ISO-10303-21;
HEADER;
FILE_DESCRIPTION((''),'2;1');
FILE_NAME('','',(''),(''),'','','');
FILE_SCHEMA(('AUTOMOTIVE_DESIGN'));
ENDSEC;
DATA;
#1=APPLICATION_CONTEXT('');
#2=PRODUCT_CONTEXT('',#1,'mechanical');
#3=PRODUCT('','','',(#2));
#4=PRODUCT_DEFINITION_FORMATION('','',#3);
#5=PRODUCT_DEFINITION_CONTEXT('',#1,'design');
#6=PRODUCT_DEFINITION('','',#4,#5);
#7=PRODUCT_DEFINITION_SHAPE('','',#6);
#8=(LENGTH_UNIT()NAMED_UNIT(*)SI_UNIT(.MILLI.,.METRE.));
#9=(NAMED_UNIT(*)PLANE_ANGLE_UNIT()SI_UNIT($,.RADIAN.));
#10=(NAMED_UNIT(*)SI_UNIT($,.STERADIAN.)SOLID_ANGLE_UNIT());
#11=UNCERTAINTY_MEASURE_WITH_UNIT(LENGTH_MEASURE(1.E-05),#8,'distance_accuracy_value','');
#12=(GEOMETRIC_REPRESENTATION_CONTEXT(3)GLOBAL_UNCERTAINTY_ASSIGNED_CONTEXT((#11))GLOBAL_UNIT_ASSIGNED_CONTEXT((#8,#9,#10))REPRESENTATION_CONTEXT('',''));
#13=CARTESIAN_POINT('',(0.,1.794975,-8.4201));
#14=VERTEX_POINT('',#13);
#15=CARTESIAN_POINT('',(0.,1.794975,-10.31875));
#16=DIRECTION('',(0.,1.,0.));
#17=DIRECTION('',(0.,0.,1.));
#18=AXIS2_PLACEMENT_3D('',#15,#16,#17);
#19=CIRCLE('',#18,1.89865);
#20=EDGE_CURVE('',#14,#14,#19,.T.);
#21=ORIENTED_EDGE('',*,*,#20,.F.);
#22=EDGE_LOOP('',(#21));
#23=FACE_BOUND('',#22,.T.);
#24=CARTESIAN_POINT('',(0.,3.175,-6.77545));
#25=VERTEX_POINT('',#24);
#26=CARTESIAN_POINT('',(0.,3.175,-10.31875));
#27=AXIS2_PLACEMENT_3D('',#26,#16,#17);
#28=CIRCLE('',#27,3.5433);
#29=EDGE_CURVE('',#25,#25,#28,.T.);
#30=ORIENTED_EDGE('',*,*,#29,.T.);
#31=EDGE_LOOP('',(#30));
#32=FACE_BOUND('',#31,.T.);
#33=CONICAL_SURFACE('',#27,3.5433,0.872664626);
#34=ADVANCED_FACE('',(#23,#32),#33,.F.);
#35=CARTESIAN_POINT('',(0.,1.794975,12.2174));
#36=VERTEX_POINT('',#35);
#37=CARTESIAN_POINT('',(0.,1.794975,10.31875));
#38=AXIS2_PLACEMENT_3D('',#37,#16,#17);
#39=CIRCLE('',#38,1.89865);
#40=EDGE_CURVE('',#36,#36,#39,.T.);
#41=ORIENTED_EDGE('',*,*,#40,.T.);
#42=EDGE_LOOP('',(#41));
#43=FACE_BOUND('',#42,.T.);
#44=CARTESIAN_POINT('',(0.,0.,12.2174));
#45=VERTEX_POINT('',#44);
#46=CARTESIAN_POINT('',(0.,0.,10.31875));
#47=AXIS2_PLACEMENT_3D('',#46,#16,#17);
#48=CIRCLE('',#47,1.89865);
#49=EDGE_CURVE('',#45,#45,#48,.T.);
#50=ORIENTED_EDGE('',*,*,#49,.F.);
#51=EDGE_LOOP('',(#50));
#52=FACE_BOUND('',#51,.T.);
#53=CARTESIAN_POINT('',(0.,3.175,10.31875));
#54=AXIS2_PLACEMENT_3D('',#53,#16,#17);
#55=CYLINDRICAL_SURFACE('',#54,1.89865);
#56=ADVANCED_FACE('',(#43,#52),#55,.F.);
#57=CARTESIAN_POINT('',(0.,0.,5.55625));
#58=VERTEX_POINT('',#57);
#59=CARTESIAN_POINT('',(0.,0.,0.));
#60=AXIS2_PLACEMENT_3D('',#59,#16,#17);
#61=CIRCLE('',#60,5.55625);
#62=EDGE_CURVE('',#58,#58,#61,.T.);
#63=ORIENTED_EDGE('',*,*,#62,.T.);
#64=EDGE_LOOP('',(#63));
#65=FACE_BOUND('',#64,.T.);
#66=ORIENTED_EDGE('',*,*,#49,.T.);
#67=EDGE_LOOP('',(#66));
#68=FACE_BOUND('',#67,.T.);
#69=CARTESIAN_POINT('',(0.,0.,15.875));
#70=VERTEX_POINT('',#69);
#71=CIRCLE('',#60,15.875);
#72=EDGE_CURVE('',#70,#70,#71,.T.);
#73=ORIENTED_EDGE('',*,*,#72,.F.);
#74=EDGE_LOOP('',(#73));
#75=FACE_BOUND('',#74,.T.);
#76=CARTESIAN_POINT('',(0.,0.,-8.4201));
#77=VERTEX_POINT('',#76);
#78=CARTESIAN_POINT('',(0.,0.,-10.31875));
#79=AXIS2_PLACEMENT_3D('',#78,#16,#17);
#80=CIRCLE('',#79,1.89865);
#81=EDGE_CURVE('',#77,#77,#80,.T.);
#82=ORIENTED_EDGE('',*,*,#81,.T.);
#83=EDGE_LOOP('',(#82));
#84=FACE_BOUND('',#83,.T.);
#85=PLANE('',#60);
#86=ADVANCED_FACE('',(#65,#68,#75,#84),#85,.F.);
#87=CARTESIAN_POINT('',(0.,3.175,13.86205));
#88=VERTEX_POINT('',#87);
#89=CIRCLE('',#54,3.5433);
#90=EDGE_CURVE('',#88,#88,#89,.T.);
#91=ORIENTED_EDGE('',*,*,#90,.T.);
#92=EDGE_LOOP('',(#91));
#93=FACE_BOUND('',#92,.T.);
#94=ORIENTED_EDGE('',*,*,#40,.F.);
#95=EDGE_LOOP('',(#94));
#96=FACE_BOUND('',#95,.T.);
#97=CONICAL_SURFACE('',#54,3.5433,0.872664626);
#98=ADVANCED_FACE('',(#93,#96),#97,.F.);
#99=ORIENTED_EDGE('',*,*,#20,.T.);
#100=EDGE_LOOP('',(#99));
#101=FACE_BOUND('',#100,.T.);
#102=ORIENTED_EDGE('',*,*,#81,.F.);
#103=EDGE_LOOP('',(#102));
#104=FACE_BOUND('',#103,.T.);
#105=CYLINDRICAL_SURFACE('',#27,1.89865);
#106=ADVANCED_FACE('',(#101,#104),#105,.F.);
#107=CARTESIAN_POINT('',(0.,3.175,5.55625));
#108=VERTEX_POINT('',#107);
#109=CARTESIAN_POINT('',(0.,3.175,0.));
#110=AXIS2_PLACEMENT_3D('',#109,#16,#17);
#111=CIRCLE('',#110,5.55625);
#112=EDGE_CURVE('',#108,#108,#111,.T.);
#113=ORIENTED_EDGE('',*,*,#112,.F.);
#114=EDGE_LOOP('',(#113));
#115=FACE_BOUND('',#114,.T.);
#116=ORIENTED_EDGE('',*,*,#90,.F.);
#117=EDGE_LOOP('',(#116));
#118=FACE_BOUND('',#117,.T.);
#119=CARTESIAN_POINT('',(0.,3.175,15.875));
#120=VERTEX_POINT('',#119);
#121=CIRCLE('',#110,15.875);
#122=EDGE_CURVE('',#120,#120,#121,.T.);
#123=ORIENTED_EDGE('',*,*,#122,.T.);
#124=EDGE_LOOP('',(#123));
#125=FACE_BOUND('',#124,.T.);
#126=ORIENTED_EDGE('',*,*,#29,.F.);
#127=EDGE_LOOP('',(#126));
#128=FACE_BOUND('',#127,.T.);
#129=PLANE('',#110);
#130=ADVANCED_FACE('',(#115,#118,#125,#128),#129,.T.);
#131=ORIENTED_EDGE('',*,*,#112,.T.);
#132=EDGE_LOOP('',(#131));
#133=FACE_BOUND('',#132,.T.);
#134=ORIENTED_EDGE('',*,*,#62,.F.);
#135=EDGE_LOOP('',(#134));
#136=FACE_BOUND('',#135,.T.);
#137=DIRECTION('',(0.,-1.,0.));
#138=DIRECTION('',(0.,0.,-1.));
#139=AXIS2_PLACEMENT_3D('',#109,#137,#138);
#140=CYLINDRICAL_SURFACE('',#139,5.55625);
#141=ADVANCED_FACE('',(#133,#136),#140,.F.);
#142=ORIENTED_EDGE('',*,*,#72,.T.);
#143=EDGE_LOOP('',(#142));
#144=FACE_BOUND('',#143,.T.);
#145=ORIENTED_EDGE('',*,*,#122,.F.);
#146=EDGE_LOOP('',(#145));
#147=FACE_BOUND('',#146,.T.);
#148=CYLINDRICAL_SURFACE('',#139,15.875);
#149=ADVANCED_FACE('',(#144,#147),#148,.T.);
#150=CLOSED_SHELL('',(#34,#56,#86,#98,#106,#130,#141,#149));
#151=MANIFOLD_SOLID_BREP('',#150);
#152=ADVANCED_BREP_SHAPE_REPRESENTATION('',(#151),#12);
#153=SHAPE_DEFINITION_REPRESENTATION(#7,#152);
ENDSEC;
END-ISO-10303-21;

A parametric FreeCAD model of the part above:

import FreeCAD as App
import Part
import Sketcher
from FreeCAD import Vector
Q = App.Units.Quantity

doc = App.newDocument("Part")
body = doc.addObject("PartDesign::Body", "Body")

sketch1 = body.newObject("Sketcher::SketchObject", "Sketch")
sketch1.AttachmentSupport = (doc.getObject("XZ_Plane"), [""])
sketch1.MapMode = "FlatFace"
sketch1.addGeometry([
    Part.Circle(Vector(0, 0, 0), Vector(0, 0, 1), 16),
    Part.Circle(Vector(0, 0, 0), Vector(0, 0, 1), 6),
], False)
sketch1.addConstraint([
    Sketcher.Constraint("Coincident", 0, 3, -1, 1),
    Sketcher.Constraint("Coincident", 1, 3, -1, 1),
    Sketcher.Constraint("Diameter", 0, Q("1.25 in")),
    Sketcher.Constraint("Diameter", 1, Q("0.4375 in")),
])
pad1 = body.newObject("PartDesign::Pad", "Pad")
pad1.Profile = sketch1
pad1.Length = Q("0.125 in")
pad1.Reversed = True

sketch2 = body.newObject("Sketcher::SketchObject", "Sketch001")
sketch2.AttachmentSupport = (doc.getObject("XZ_Plane"), [""])
sketch2.MapMode = "FlatFace"
sketch2.AttachmentOffset = App.Placement(Vector(0, 0, -0.125 * 25.4), App.Rotation())
sketch2.addGeometry([
    Part.Circle(Vector(0, 10.3, 0), Vector(0, 0, 1), 1.9),
    Part.Circle(Vector(0, -10.3, 0), Vector(0, 0, 1), 1.9),
], False)
sketch2.addConstraint([
    Sketcher.Constraint("Equal", 0, 1),
    Sketcher.Constraint("Symmetric", 0, 3, 1, 3, -1, 1),
    Sketcher.Constraint("PointOnObject", 0, 3, -2),
    Sketcher.Constraint("Diameter", 0, Q("0.1495 in")),
    Sketcher.Constraint("DistanceY", -1, 1, 0, 3, Q("0.40625 in")),
])
doc.recompute()
hole = body.newObject("PartDesign::Hole", "Hole")
hole.Profile = sketch2
hole.ThreadType = "None"
hole.Diameter = Q("0.1495 in")
hole.DepthType = "ThroughAll"
hole.HoleCutType = "Countersink"
hole.HoleCutDiameter = Q("0.279 in")
hole.HoleCutCountersinkAngle = 100
hole.Reversed = True

doc.recompute()
